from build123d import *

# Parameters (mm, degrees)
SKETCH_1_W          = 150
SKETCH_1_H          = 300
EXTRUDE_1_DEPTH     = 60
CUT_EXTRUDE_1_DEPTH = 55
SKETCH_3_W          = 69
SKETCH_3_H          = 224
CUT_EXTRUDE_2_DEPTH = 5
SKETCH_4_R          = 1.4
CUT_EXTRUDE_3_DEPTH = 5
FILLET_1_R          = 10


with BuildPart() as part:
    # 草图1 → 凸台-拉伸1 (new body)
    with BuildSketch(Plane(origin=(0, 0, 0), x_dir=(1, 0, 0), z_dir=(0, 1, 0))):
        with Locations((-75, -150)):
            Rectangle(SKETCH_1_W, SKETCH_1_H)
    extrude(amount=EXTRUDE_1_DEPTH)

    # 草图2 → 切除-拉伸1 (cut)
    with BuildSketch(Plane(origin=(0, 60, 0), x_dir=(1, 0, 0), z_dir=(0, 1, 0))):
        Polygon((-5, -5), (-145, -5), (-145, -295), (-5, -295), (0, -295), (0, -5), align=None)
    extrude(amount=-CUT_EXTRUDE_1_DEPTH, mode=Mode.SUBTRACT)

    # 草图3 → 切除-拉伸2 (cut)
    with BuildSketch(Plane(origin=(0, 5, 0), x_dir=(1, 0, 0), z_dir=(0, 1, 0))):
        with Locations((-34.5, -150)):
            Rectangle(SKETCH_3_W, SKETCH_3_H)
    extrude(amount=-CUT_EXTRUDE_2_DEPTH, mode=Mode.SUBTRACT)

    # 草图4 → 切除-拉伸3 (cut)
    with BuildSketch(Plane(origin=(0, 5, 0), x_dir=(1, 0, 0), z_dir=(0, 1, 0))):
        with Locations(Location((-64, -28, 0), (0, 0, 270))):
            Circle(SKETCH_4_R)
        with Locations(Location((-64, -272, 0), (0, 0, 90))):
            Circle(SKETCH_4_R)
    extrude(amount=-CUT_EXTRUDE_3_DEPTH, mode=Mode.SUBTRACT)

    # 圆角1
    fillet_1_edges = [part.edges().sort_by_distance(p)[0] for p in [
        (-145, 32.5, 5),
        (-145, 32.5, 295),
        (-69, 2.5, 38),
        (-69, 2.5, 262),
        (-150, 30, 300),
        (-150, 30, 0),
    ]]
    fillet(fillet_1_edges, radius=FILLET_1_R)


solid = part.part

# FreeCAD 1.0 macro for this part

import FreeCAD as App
import Part
import Sketcher
from FreeCAD import Vector


def edges_at(feature, points):
    """Names of the edges that pass closest to the given points."""
    edges = feature.Shape.Edges
    near = lambda p: min(range(len(edges)), key=lambda i: edges[i].distToShape(Part.Vertex(*p))[0])
    return sorted({f"Edge{near(p) + 1}" for p in points})

doc = App.newDocument("Part")
body = doc.addObject("PartDesign::Body", "Body")

# Sketch on XZ plane
sketch1 = body.newObject("Sketcher::SketchObject", "Sketch")
sketch1.AttachmentSupport = (doc.getObject("XZ_Plane"), [""])
sketch1.MapMode = "FlatFace"
sketch1.addGeometry([
    Part.LineSegment(Vector(-150, 0, 0), Vector(-150, 300, 0)),
    Part.LineSegment(Vector(-150, 300, 0), Vector(0, 300, 0)),
    Part.LineSegment(Vector(0, 300, 0), Vector(0, 0, 0)),
    Part.LineSegment(Vector(0, 0, 0), Vector(-150, 0, 0)),
], False)
sketch1.addConstraint([
    Sketcher.Constraint("Coincident", 0, 2, 1, 1),
    Sketcher.Constraint("Coincident", 1, 2, 2, 1),
    Sketcher.Constraint("Coincident", 2, 2, 3, 1),
    Sketcher.Constraint("Coincident", 3, 2, 0, 1),
    Sketcher.Constraint("Vertical", 0),
    Sketcher.Constraint("Horizontal", 1),
    Sketcher.Constraint("Vertical", 2),
    Sketcher.Constraint("Horizontal", 3),
    Sketcher.Constraint("Coincident", 2, 2, -1, 1),
    Sketcher.Constraint("DistanceX", 1, 1, 1, 2, 150.0),
    Sketcher.Constraint("DistanceY", 0, 1, 0, 2, 300.0),
])
pad1 = body.newObject("PartDesign::Pad", "Pad")
pad1.Profile = sketch1
pad1.Length = 60
pad1.Reversed = True

# Sketch on XZ plane
sketch2 = body.newObject("Sketcher::SketchObject", "Sketch001")
sketch2.AttachmentSupport = (doc.getObject("XZ_Plane"), [""])
sketch2.MapMode = "FlatFace"
sketch2.AttachmentOffset = App.Placement(Vector(0, 0, -60), App.Rotation())
sketch2.addGeometry([
    Part.LineSegment(Vector(-145, 5, 0), Vector(-145, 295, 0)),
    Part.LineSegment(Vector(-145, 295, 0), Vector(0, 295, 0)),
    Part.LineSegment(Vector(0, 295, 0), Vector(0, 5, 0)),
    Part.LineSegment(Vector(0, 5, 0), Vector(-145, 5, 0)),
], False)
sketch2.addConstraint([
    Sketcher.Constraint("Coincident", 0, 2, 1, 1),
    Sketcher.Constraint("Coincident", 1, 2, 2, 1),
    Sketcher.Constraint("Coincident", 2, 2, 3, 1),
    Sketcher.Constraint("Coincident", 3, 2, 0, 1),
    Sketcher.Constraint("Vertical", 0),
    Sketcher.Constraint("Horizontal", 1),
    Sketcher.Constraint("Vertical", 2),
    Sketcher.Constraint("Horizontal", 3),
    Sketcher.Constraint("PointOnObject", 1, 2, -2),
    Sketcher.Constraint("DistanceX", 1, 1, 1, 2, 145.0),
    Sketcher.Constraint("DistanceY", 0, 1, 0, 2, 290.0),
    Sketcher.Constraint("DistanceY", -1, 1, 0, 2, 295.0),
])
pocket1 = body.newObject("PartDesign::Pocket", "Pocket")
pocket1.Profile = sketch2
pocket1.Length = 55
pocket1.Reversed = True

# Sketch on XZ plane
sketch3 = body.newObject("Sketcher::SketchObject", "Sketch002")
sketch3.AttachmentSupport = (doc.getObject("XZ_Plane"), [""])
sketch3.MapMode = "FlatFace"
sketch3.AttachmentOffset = App.Placement(Vector(0, 0, -5), App.Rotation())
sketch3.addGeometry([
    Part.LineSegment(Vector(-69, 38, 0), Vector(-69, 262, 0)),
    Part.LineSegment(Vector(-69, 262, 0), Vector(0, 262, 0)),
    Part.LineSegment(Vector(0, 262, 0), Vector(0, 38, 0)),
    Part.LineSegment(Vector(0, 38, 0), Vector(-69, 38, 0)),
], False)
sketch3.addConstraint([
    Sketcher.Constraint("Coincident", 0, 2, 1, 1),
    Sketcher.Constraint("Coincident", 1, 2, 2, 1),
    Sketcher.Constraint("Coincident", 2, 2, 3, 1),
    Sketcher.Constraint("Coincident", 3, 2, 0, 1),
    Sketcher.Constraint("Vertical", 0),
    Sketcher.Constraint("Horizontal", 1),
    Sketcher.Constraint("Vertical", 2),
    Sketcher.Constraint("Horizontal", 3),
    Sketcher.Constraint("PointOnObject", 1, 2, -2),
    Sketcher.Constraint("DistanceX", 1, 1, 1, 2, 69.0),
    Sketcher.Constraint("DistanceY", 0, 1, 0, 2, 224.0),
    Sketcher.Constraint("DistanceY", -1, 1, 0, 2, 262.0),
])
pocket2 = body.newObject("PartDesign::Pocket", "Pocket001")
pocket2.Profile = sketch3
pocket2.Length = 5
pocket2.Reversed = True

# Sketch on XZ plane
sketch4 = body.newObject("Sketcher::SketchObject", "Sketch003")
sketch4.AttachmentSupport = (doc.getObject("XZ_Plane"), [""])
sketch4.MapMode = "FlatFace"
sketch4.AttachmentOffset = App.Placement(Vector(0, 0, -5), App.Rotation())
sketch4.addGeometry([
    Part.Circle(Vector(-64, 28, 0), Vector(0, 0, 1), 1.4),
    Part.Circle(Vector(-64, 272, 0), Vector(0, 0, 1), 1.4),
], False)
sketch4.addConstraint([
    Sketcher.Constraint("Equal", 0, 1),
    Sketcher.Constraint("Vertical", 0, 3, 1, 3),
    Sketcher.Constraint("Diameter", 0, 2.8),
    Sketcher.Constraint("DistanceX", 0, 3, -1, 1, 64.0),
    Sketcher.Constraint("DistanceY", -1, 1, 0, 3, 28.0),
    Sketcher.Constraint("DistanceY", -1, 1, 1, 3, 272.0),
])
pocket3 = body.newObject("PartDesign::Pocket", "Pocket002")
pocket3.Profile = sketch4
pocket3.Length = 5
pocket3.Reversed = True
doc.recompute()

fillet = body.newObject("PartDesign::Fillet", "Fillet")
fillet.Base = (pocket3, edges_at(pocket3, [
    (-145, 32.5, 5),
    (-145, 32.5, 295),
    (-69, 2.5, 38),
    (-69, 2.5, 262),
    (-150, 30, 300),
    (-150, 30, 0),
]))
fillet.Radius = 10

doc.recompute()
